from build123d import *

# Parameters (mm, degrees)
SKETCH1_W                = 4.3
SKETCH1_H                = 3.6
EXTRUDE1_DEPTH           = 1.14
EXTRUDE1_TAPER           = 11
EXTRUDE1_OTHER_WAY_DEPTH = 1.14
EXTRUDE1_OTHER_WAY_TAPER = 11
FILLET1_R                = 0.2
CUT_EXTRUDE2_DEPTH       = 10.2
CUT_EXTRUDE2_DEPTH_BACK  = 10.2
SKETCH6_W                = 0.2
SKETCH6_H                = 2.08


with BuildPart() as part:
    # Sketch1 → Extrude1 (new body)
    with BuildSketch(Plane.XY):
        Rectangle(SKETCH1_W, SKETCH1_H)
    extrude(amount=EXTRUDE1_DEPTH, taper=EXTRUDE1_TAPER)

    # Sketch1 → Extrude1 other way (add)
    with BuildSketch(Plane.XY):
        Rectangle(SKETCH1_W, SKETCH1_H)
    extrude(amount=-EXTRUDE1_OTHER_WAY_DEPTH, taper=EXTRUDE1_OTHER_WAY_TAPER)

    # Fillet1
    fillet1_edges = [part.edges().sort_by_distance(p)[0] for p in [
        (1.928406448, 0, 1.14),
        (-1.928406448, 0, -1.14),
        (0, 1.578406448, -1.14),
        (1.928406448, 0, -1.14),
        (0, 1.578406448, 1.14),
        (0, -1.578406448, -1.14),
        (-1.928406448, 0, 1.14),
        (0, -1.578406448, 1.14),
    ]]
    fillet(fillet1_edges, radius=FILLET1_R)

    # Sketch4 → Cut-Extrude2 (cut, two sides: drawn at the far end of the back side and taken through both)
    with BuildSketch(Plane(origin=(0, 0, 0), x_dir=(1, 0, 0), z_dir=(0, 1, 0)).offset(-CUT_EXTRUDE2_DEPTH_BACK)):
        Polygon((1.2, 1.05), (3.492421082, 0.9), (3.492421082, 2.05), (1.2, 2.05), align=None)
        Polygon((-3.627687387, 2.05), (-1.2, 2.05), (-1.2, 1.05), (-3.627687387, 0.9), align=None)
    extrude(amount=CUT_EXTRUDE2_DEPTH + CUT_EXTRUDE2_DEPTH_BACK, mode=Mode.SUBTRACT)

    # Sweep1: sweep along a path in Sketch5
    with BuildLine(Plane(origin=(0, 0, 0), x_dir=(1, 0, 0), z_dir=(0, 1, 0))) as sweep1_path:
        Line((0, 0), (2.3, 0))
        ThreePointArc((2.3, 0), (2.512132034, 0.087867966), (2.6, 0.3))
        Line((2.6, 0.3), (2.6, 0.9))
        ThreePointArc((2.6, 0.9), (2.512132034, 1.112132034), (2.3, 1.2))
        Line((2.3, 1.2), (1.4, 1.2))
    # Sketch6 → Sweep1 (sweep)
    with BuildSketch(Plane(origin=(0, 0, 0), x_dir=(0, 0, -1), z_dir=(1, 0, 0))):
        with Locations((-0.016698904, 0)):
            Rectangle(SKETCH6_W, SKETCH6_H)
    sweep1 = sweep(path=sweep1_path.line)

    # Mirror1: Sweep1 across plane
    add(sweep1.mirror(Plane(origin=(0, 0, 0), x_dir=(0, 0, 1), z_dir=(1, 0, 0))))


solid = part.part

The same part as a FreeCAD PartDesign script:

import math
import FreeCAD as App
import Part
import Sketcher
from FreeCAD import Vector
Q = App.Units.Quantity


def edges_at(feature, points):
    """Names of the edges that pass closest to the given points."""
    edges = feature.Shape.Edges
    near = lambda p: min(range(len(edges)), key=lambda i: edges[i].distToShape(Part.Vertex(*p))[0])
    return sorted({f"Edge{near(p) + 1}" for p in points})

doc = App.newDocument("Part")
body = doc.addObject("PartDesign::Body", "Body")

sketch1 = body.newObject("Sketcher::SketchObject", "Sketch")
sketch1.AttachmentSupport = (doc.getObject("XY_Plane"), [""])
sketch1.MapMode = "FlatFace"
sketch1.addGeometry(Part.LineSegment(Vector(-2.1, 1.8, 0), Vector(-2.1, -1.8, 0)), False)
sketch1.addGeometry(Part.LineSegment(Vector(-2.1, -1.8, 0), Vector(2.1, -1.8, 0)), False)
sketch1.addGeometry(Part.LineSegment(Vector(2.1, -1.8, 0), Vector(2.1, 1.8, 0)), False)
sketch1.addGeometry(Part.LineSegment(Vector(2.1, 1.8, 0), Vector(-2.1, 1.8, 0)), False)
sketch1.addConstraint(Sketcher.Constraint("Coincident", 0, 2, 1, 1))
sketch1.addConstraint(Sketcher.Constraint("Coincident", 1, 2, 2, 1))
sketch1.addConstraint(Sketcher.Constraint("Coincident", 2, 2, 3, 1))
sketch1.addConstraint(Sketcher.Constraint("Coincident", 3, 2, 0, 1))
sketch1.addConstraint(Sketcher.Constraint("Vertical", 0))
sketch1.addConstraint(Sketcher.Constraint("Horizontal", 1))
sketch1.addConstraint(Sketcher.Constraint("Vertical", 2))
sketch1.addConstraint(Sketcher.Constraint("Horizontal", 3))
sketch1.addConstraint(Sketcher.Constraint("Symmetric", 0, 2, 2, 2, -1, 1))
sketch1.addConstraint(Sketcher.Constraint("DistanceX", 1, 1, 1, 2, Q("4.3 mm")))
sketch1.addConstraint(Sketcher.Constraint("DistanceY", 0, 2, 0, 1, Q("3.6 mm")))
pad1 = body.newObject("PartDesign::Pad", "Pad")
pad1.Profile = sketch1
pad1.Length = 1.14
pad1.TaperAngle = -11

sketch2 = body.newObject("Sketcher::SketchObject", "Sketch001")
sketch2.AttachmentSupport = (doc.getObject("XY_Plane"), [""])
sketch2.MapMode = "FlatFace"
sketch2.addGeometry(Part.LineSegment(Vector(-2.1, 1.8, 0), Vector(-2.1, -1.8, 0)), False)
sketch2.addGeometry(Part.LineSegment(Vector(-2.1, -1.8, 0), Vector(2.1, -1.8, 0)), False)
sketch2.addGeometry(Part.LineSegment(Vector(2.1, -1.8, 0), Vector(2.1, 1.8, 0)), False)
sketch2.addGeometry(Part.LineSegment(Vector(2.1, 1.8, 0), Vector(-2.1, 1.8, 0)), False)
sketch2.addConstraint(Sketcher.Constraint("Coincident", 0, 2, 1, 1))
sketch2.addConstraint(Sketcher.Constraint("Coincident", 1, 2, 2, 1))
sketch2.addConstraint(Sketcher.Constraint("Coincident", 2, 2, 3, 1))
sketch2.addConstraint(Sketcher.Constraint("Coincident", 3, 2, 0, 1))
sketch2.addConstraint(Sketcher.Constraint("Vertical", 0))
sketch2.addConstraint(Sketcher.Constraint("Horizontal", 1))
sketch2.addConstraint(Sketcher.Constraint("Vertical", 2))
sketch2.addConstraint(Sketcher.Constraint("Horizontal", 3))
sketch2.addConstraint(Sketcher.Constraint("Symmetric", 0, 2, 2, 2, -1, 1))
sketch2.addConstraint(Sketcher.Constraint("DistanceX", 1, 1, 1, 2, Q("4.3 mm")))
sketch2.addConstraint(Sketcher.Constraint("DistanceY", 0, 2, 0, 1, Q("3.6 mm")))
pad2 = body.newObject("PartDesign::Pad", "Pad001")
pad2.Profile = sketch2
pad2.Length = 1.14
pad2.Reversed = True
pad2.TaperAngle = -11
doc.recompute()

fillet = body.newObject("PartDesign::Fillet", "Fillet")
fillet.Base = (pad2, edges_at(pad2, [
    (1.928, 0, 1.14),
    (-1.928, 0, -1.14),
    (0, 1.578, -1.14),
    (1.928, 0, -1.14),
    (0, 1.578, 1.14),
    (0, -1.578, -1.14),
    (-1.928, 0, 1.14),
    (0, -1.578, 1.14),
]))
fillet.Radius = 0.2

sketch3 = body.newObject("Sketcher::SketchObject", "Sketch002")
sketch3.AttachmentSupport = (doc.getObject("XZ_Plane"), [""])
sketch3.MapMode = "FlatFace"
sketch3.addGeometry(Part.LineSegment(Vector(1.2, -1.1, 0), Vector(3.5, -0.9, 0)), False)
sketch3.addGeometry(Part.LineSegment(Vector(3.5, -0.9, 0), Vector(3.5, -2, 0)), False)
sketch3.addGeometry(Part.LineSegment(Vector(3.5, -2, 0), Vector(1.2, -2, 0)), False)
sketch3.addGeometry(Part.LineSegment(Vector(1.2, -2, 0), Vector(1.2, -1.1, 0)), False)
sketch3.addGeometry(Part.LineSegment(Vector(-1.2, -2, 0), Vector(-3.6, -2, 0)), False)
sketch3.addGeometry(Part.LineSegment(Vector(-3.6, -2, 0), Vector(-3.6, -0.9, 0)), False)
sketch3.addGeometry(Part.LineSegment(Vector(-3.6, -0.9, 0), Vector(-1.2, -1.1, 0)), False)
sketch3.addGeometry(Part.LineSegment(Vector(-1.2, -1.1, 0), Vector(-1.2, -2, 0)), False)
sketch3.addConstraint(Sketcher.Constraint("Coincident", 0, 2, 1, 1))
sketch3.addConstraint(Sketcher.Constraint("Coincident", 1, 2, 2, 1))
sketch3.addConstraint(Sketcher.Constraint("Coincident", 2, 2, 3, 1))
sketch3.addConstraint(Sketcher.Constraint("Coincident", 3, 2, 0, 1))
sketch3.addConstraint(Sketcher.Constraint("Coincident", 4, 2, 5, 1))
sketch3.addConstraint(Sketcher.Constraint("Coincident", 5, 2, 6, 1))
sketch3.addConstraint(Sketcher.Constraint("Coincident", 6, 2, 7, 1))
sketch3.addConstraint(Sketcher.Constraint("Coincident", 7, 2, 4, 1))
sketch3.addConstraint(Sketcher.Constraint("Vertical", 1))
sketch3.addConstraint(Sketcher.Constraint("Horizontal", 2))
sketch3.addConstraint(Sketcher.Constraint("Vertical", 3))
sketch3.addConstraint(Sketcher.Constraint("Horizontal", 4))
sketch3.addConstraint(Sketcher.Constraint("Vertical", 5))
sketch3.addConstraint(Sketcher.Constraint("Vertical", 7))
sketch3.addConstraint(Sketcher.Constraint("Symmetric", 3, 2, 6, 2, -2))
sketch3.addConstraint(Sketcher.Constraint("Horizontal", 2, 2, 4, 2))
sketch3.addConstraint(Sketcher.Constraint("Horizontal", 0, 2, 5, 2))
sketch3.addConstraint(Sketcher.Constraint("DistanceY", 3, 1, 3, 2, Q("1 mm")))
sketch3.addConstraint(Sketcher.Constraint("DistanceY", 1, 2, 1, 1, Q("1.15 mm")))
sketch3.addConstraint(Sketcher.Constraint("DistanceY", 0, 2, -1, 1, Q("0.9 mm")))
sketch3.addConstraint(Sketcher.Constraint("DistanceX", -1, 1, 2, 2, Q("1.2 mm")))
sketch3.addConstraint(Sketcher.Constraint("DistanceX", 2, 2, 2, 1, Q("2.292421 mm")))
sketch3.addConstraint(Sketcher.Constraint("DistanceX", 4, 2, 4, 1, Q("2.427687 mm")))
pocket1 = body.newObject("PartDesign::Pocket", "Pocket")
pocket1.Profile = sketch3
pocket1.Type = "ThroughAll"
pocket1.Midplane = True

sketch4 = body.newObject("Sketcher::SketchObject", "Sketch003")
sketch4.AttachmentSupport = (doc.getObject("YZ_Plane"), [""])
sketch4.MapMode = "FlatFace"
sketch4.addGeometry(Part.LineSegment(Vector(1.04, 0.12, 0), Vector(-1.04, 0.12, 0)), False)
sketch4.addGeometry(Part.LineSegment(Vector(-1.04, 0.12, 0), Vector(-1.04, -0.08, 0)), False)
sketch4.addGeometry(Part.LineSegment(Vector(-1.04, -0.08, 0), Vector(1.04, -0.08, 0)), False)
sketch4.addGeometry(Part.LineSegment(Vector(1.04, -0.08, 0), Vector(1.04, 0.12, 0)), False)
sketch4.addConstraint(Sketcher.Constraint("Coincident", 0, 2, 1, 1))
sketch4.addConstraint(Sketcher.Constraint("Coincident", 1, 2, 2, 1))
sketch4.addConstraint(Sketcher.Constraint("Coincident", 2, 2, 3, 1))
sketch4.addConstraint(Sketcher.Constraint("Coincident", 3, 2, 0, 1))
sketch4.addConstraint(Sketcher.Constraint("Horizontal", 0))
sketch4.addConstraint(Sketcher.Constraint("Vertical", 1))
sketch4.addConstraint(Sketcher.Constraint("Horizontal", 2))
sketch4.addConstraint(Sketcher.Constraint("Vertical", 3))
sketch4.addConstraint(Sketcher.Constraint("DistanceY", 1, 2, 1, 1, Q("0.2 mm")))
sketch4.addConstraint(Sketcher.Constraint("DistanceX", 0, 2, 0, 1, Q("2.08 mm")))
sketch4.addConstraint(Sketcher.Constraint("DistanceX", 0, 2, -1, 1, Q("1.04 mm")))
sketch4.addConstraint(Sketcher.Constraint("DistanceY", -1, 1, 0, 2, Q("0.116699 mm")))

sketch5 = body.newObject("Sketcher::SketchObject", "Sketch004")
sketch5.AttachmentSupport = (doc.getObject("XZ_Plane"), [""])
sketch5.MapMode = "FlatFace"
sketch5.addGeometry(Part.LineSegment(Vector(0, 0, 0), Vector(2.3, 0, 0)), False)
sketch5.addGeometry(Part.ArcOfCircle(Part.Circle(Vector(2.3, -0.3, 0), Vector(0, 0, 1), 0.3), math.radians(0), math.radians(90)), False)
sketch5.addGeometry(Part.LineSegment(Vector(2.6, -0.3, 0), Vector(2.6, -0.9, 0)), False)
sketch5.addGeometry(Part.ArcOfCircle(Part.Circle(Vector(2.3, -0.9, 0), Vector(0, 0, 1), 0.3), math.radians(-90), math.radians(0)), False)
sketch5.addGeometry(Part.LineSegment(Vector(2.3, -1.2, 0), Vector(1.4, -1.2, 0)), False)
sketch5.addConstraint(Sketcher.Constraint("Tangent", 0, 2, 1, 2))
sketch5.addConstraint(Sketcher.Constraint("Tangent", 1, 1, 2, 1))
sketch5.addConstraint(Sketcher.Constraint("Tangent", 2, 2, 3, 2))
sketch5.addConstraint(Sketcher.Constraint("Tangent", 3, 1, 4, 1))
sketch5.addConstraint(Sketcher.Constraint("Horizontal", 0))
sketch5.addConstraint(Sketcher.Constraint("Vertical", 2))
sketch5.addConstraint(Sketcher.Constraint("Horizontal", 4))
sketch5.addConstraint(Sketcher.Constraint("Coincident", 0, 1, -1, 1))
sketch5.addConstraint(Sketcher.Constraint("Equal", 1, 3))
sketch5.addConstraint(Sketcher.Constraint("Radius", 1, Q("0.3 mm")))
sketch5.addConstraint(Sketcher.Constraint("DistanceX", 0, 1, 0, 2, Q("2.3 mm")))
sketch5.addConstraint(Sketcher.Constraint("DistanceX", 4, 2, 4, 1, Q("0.9 mm")))
sketch5.addConstraint(Sketcher.Constraint("DistanceY", 2, 2, 2, 1, Q("0.6 mm")))
doc.recompute()

additivepipe = body.newObject("PartDesign::AdditivePipe", "AdditivePipe")
additivepipe.Profile = sketch4
additivepipe.Spine = (sketch5, ["Edge1", "Edge2", "Edge3", "Edge4", "Edge5"])
doc.recompute()

mirrored = body.newObject("PartDesign::Mirrored", "Mirrored")
mirrored.Originals = [additivepipe]
mirrored.MirrorPlane = (doc.getObject("YZ_Plane"), [""])
body.Tip = mirrored

doc.recompute()
